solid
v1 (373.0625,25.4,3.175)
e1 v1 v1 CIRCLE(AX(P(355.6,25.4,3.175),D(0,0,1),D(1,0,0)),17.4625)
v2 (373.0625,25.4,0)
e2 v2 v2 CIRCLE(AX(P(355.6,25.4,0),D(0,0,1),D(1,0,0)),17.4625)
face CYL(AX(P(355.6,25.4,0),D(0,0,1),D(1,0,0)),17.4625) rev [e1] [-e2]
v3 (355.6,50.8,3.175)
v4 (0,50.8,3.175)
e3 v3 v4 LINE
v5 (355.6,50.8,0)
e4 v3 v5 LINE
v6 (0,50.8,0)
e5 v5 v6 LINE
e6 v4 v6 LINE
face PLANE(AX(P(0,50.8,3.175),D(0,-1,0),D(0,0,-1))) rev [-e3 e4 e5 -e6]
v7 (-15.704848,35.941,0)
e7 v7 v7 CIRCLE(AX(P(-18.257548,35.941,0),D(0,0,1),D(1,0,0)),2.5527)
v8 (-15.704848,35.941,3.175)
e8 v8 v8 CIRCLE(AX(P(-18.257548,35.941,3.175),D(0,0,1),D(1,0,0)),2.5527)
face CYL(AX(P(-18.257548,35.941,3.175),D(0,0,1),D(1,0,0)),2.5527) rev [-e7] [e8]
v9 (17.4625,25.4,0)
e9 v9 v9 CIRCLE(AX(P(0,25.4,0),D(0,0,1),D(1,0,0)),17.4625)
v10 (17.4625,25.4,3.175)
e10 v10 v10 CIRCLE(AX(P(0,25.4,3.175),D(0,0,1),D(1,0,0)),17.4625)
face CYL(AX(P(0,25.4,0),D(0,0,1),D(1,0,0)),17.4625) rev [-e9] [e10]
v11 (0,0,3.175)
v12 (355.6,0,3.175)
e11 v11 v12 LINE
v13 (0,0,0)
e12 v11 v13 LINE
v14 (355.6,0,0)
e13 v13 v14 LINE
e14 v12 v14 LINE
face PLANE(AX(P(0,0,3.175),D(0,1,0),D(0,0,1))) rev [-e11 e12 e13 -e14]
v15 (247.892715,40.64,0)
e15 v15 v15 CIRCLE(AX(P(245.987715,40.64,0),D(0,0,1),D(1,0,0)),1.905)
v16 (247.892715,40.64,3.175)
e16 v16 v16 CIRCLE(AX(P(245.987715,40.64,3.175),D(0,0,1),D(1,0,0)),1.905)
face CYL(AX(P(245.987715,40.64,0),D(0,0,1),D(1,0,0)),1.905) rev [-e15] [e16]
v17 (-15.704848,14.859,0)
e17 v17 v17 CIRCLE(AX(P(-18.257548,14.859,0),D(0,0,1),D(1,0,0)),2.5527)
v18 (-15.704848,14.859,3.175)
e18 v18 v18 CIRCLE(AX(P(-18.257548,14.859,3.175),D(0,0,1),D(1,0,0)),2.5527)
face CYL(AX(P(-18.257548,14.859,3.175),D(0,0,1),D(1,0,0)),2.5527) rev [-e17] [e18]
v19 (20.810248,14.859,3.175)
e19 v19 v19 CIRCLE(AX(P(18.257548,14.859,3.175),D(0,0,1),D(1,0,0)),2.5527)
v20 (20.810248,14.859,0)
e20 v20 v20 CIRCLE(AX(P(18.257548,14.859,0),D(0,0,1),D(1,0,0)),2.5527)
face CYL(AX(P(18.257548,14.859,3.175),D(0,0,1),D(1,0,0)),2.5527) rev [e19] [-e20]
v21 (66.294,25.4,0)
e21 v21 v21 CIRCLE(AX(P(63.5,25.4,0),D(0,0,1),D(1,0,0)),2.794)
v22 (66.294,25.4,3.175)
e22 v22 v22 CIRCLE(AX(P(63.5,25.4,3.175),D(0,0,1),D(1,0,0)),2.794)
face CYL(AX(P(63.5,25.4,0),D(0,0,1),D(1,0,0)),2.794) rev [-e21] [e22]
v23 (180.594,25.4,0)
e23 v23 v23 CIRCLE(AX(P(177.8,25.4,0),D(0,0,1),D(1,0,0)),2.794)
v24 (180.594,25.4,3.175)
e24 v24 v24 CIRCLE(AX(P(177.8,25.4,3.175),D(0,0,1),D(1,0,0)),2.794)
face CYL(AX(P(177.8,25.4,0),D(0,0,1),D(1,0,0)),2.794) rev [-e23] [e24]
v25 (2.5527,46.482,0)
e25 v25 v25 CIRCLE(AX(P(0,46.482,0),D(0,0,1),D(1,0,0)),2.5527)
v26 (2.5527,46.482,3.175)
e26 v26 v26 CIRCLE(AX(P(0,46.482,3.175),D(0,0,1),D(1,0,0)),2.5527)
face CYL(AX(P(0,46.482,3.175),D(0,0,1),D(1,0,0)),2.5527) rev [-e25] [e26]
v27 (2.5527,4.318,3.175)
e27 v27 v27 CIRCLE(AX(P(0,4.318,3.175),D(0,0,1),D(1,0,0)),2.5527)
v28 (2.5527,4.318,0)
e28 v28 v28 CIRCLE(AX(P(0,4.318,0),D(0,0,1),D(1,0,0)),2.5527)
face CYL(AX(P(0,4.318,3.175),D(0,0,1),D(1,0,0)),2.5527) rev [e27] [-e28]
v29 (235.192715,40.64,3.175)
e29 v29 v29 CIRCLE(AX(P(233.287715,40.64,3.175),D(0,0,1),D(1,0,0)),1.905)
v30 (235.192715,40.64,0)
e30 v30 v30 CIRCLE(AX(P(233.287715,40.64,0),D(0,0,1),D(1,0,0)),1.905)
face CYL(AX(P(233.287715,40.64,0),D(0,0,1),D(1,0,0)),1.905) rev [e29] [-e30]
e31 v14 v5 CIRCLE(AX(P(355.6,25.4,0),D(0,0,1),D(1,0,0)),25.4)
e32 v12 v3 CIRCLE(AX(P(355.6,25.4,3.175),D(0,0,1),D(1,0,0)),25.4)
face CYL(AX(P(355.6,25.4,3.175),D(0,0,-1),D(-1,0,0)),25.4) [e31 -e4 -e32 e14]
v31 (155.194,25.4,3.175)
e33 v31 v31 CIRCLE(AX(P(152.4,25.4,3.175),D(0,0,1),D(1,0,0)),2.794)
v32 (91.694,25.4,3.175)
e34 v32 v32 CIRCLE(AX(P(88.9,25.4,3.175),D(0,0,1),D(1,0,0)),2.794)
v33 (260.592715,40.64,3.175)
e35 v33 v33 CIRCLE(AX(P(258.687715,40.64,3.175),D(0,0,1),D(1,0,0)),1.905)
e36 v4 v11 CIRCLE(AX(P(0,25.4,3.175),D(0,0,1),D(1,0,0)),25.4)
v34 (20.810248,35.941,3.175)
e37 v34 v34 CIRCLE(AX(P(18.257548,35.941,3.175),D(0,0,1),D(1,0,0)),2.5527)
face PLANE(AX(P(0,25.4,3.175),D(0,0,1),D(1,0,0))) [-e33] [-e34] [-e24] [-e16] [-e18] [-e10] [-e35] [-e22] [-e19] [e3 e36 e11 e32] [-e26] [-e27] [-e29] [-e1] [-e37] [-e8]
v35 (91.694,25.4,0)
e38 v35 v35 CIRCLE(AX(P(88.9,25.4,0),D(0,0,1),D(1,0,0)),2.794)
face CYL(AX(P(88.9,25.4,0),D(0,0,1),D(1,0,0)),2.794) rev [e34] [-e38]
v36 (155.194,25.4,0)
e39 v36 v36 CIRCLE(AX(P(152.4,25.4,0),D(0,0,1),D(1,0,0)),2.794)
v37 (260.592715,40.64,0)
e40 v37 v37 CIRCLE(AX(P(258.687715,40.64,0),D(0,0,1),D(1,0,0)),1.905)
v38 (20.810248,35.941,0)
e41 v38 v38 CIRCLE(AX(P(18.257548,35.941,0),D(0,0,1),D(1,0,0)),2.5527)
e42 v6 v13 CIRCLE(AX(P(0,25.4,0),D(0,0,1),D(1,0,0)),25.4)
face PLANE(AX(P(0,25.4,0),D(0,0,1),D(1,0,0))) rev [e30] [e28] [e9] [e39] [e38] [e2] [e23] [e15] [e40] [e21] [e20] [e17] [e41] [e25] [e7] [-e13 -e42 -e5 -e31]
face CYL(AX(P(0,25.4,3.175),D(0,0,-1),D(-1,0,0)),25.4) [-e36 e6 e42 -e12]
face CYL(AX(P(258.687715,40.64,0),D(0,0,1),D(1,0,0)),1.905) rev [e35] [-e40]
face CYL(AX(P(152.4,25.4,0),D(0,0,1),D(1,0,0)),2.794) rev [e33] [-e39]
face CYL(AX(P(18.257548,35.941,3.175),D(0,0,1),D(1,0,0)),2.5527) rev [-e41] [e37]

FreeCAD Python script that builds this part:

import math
import FreeCAD as App
import Part
import Sketcher

V = App.Vector
Q = App.Units.Quantity

doc = App.newDocument("Part")
params = doc.addObject("Spreadsheet::Sheet", "Params")
for row, (alias, value) in enumerate([
    ("sketch1_radius", "1 in"),
    ("sketch1_width", "14 in"),
    ("pad1_length", "0.125 in"),
    ("sketch2_diameter", "1.375 in"),
    ("sketch3_diameter", "0.201 in"),
    ("hole_diameter", "0.201 in"),
    ("sketch4_diameter", "0.22 in"),
    ("sketch5_diameter", "0.15 in"),
], start=1):
    params.set(f"A{row}", alias)
    params.set(f"B{row}", "=" + value)
    params.setAlias(f"B{row}", alias)

body = doc.addObject("PartDesign::Body", "Body")

# Sketch on XY plane
sketch1 = doc.addObject("Sketcher::SketchObject", "Sketch")
body.addObject(sketch1)
sketch1.AttachmentSupport = (doc.XY_Plane, [""])
sketch1.MapMode = "FlatFace"
sketch1.addGeometry(Part.LineSegment(V(0, 0, 0), V(356, 0, 0)), False)
sketch1.addGeometry(Part.ArcOfCircle(Part.Circle(V(356, 25, 0), V(0, 0, 1), 25), math.radians(-90), math.radians(90)), False)
sketch1.addGeometry(Part.LineSegment(V(356, 51, 0), V(0, 51, 0)), False)
sketch1.addGeometry(Part.ArcOfCircle(Part.Circle(V(0, 25, 0), V(0, 0, 1), 25), math.radians(90), math.radians(270)), False)
sketch1.addConstraint(Sketcher.Constraint("Tangent", 0, 2, 1, 1))
sketch1.addConstraint(Sketcher.Constraint("Tangent", 1, 2, 2, 1))
sketch1.addConstraint(Sketcher.Constraint("Tangent", 2, 2, 3, 1))
sketch1.addConstraint(Sketcher.Constraint("Tangent", 3, 2, 0, 1))
sketch1.addConstraint(Sketcher.Constraint("Horizontal", 0))
sketch1.addConstraint(Sketcher.Constraint("Horizontal", 2))
sketch1.addConstraint(Sketcher.Constraint("Coincident", 3, 2, -1, 1))
sketch1.addConstraint(Sketcher.Constraint("Radius", 1, Q("1 in")))
sketch1.addConstraint(Sketcher.Constraint("DistanceX", 0, 1, 0, 2, Q("14 in")))
sketch1.setExpression("Constraints[7]", "Params.sketch1_radius")
sketch1.setExpression("Constraints[8]", "Params.sketch1_width")
pad1 = doc.addObject("PartDesign::Pad", "Pad")
body.addObject(pad1)
pad1.Profile = sketch1
pad1.setExpression("Length", "Params.pad1_length")

# Sketch on XY plane
sketch2 = doc.addObject("Sketcher::SketchObject", "Sketch001")
body.addObject(sketch2)
sketch2.AttachmentSupport = (doc.XY_Plane, [""])
sketch2.MapMode = "FlatFace"
sketch2.AttachmentOffset = App.Placement(V(0, 0, 0.125 * 25.4), App.Rotation())
sketch2.addGeometry(Part.Circle(V(0, 25, 0), V(0, 0, 1), 17), False)
sketch2.addGeometry(Part.Circle(V(356, 25, 0), V(0, 0, 1), 17), False)
sketch2.addConstraint(Sketcher.Constraint("Equal", 0, 1))
sketch2.addConstraint(Sketcher.Constraint("PointOnObject", 0, 3, -2))
sketch2.addConstraint(Sketcher.Constraint("Horizontal", 0, 3, 1, 3))
sketch2.addConstraint(Sketcher.Constraint("Diameter", 0, Q("1.375 in")))
sketch2.addConstraint(Sketcher.Constraint("DistanceY", -1, 1, 0, 3, Q("1 in")))
sketch2.addConstraint(Sketcher.Constraint("DistanceX", -1, 1, 1, 3, Q("14 in")))
sketch2.setExpression("Constraints[3]", "Params.sketch2_diameter")
pocket1 = doc.addObject("PartDesign::Pocket", "Pocket")
body.addObject(pocket1)
pocket1.Profile = sketch2
pocket1.Type = "ThroughAll"

# Sketch on XY plane
sketch3 = doc.addObject("Sketcher::SketchObject", "Sketch002")
body.addObject(sketch3)
sketch3.AttachmentSupport = (doc.XY_Plane, [""])
sketch3.MapMode = "FlatFace"
sketch3.AttachmentOffset = App.Placement(V(0, 0, 0.125 * 25.4), App.Rotation())
sketch3.addGeometry(Part.Circle(V(18.3, 35.9, 0), V(0, 0, 1), 2.6), False)
sketch3.addGeometry(Part.Circle(V(18.3, 14.9, 0), V(0, 0, 1), 2.6), False)
sketch3.addGeometry(Part.Circle(V(0, 4.3, 0), V(0, 0, 1), 2.6), False)
sketch3.addGeometry(Part.Circle(V(-18.3, 14.9, 0), V(0, 0, 1), 2.6), False)
sketch3.addGeometry(Part.Circle(V(-18.3, 35.9, 0), V(0, 0, 1), 2.6), False)
sketch3.addGeometry(Part.Circle(V(0, 46.5, 0), V(0, 0, 1), 2.6), False)
sketch3.addConstraint(Sketcher.Constraint("Equal", 0, 1))
sketch3.addConstraint(Sketcher.Constraint("Equal", 1, 2))
sketch3.addConstraint(Sketcher.Constraint("Equal", 2, 3))
sketch3.addConstraint(Sketcher.Constraint("Equal", 3, 4))
sketch3.addConstraint(Sketcher.Constraint("Equal", 4, 5))
sketch3.addConstraint(Sketcher.Constraint("Symmetric", 1, 3, 3, 3, -2))
sketch3.addConstraint(Sketcher.Constraint("Symmetric", 0, 3, 4, 3, -2))
sketch3.addConstraint(Sketcher.Constraint("PointOnObject", 2, 3, -2))
sketch3.addConstraint(Sketcher.Constraint("PointOnObject", 5, 3, -2))
sketch3.addConstraint(Sketcher.Constraint("Vertical", 0, 3, 1, 3))
sketch3.addConstraint(Sketcher.Constraint("Diameter", 0, Q("0.201 in")))
sketch3.addConstraint(Sketcher.Constraint("DistanceY", -1, 1, 2, 3, Q("0.17 in")))
sketch3.addConstraint(Sketcher.Constraint("DistanceY", -1, 1, 5, 3, Q("1.83 in")))
sketch3.addConstraint(Sketcher.Constraint("DistanceY", 1, 3, 0, 3, Q("0.83 in")))
sketch3.addConstraint(Sketcher.Constraint("DistanceY", -1, 1, 0, 3, Q("1.415 in")))
sketch3.addConstraint(Sketcher.Constraint("DistanceX", -1, 1, 0, 3, 18.257548))
sketch3.setExpression("Constraints[10]", "Params.sketch3_diameter")
doc.recompute()
hole = doc.addObject("PartDesign::Hole", "Hole")
body.addObject(hole)
hole.Profile = sketch3
hole.ThreadType = "None"
hole.setExpression("Diameter", "Params.hole_diameter")
hole.DepthType = "ThroughAll"

# Sketch on XY plane
sketch4 = doc.addObject("Sketcher::SketchObject", "Sketch003")
body.addObject(sketch4)
sketch4.AttachmentSupport = (doc.XY_Plane, [""])
sketch4.MapMode = "FlatFace"
sketch4.AttachmentOffset = App.Placement(V(0, 0, 0.125 * 25.4), App.Rotation())
sketch4.addGeometry(Part.Circle(V(63.5, 25.4, 0), V(0, 0, 1), 2.8), False)
sketch4.addGeometry(Part.Circle(V(88.9, 25.4, 0), V(0, 0, 1), 2.8), False)
sketch4.addGeometry(Part.Circle(V(152.4, 25.4, 0), V(0, 0, 1), 2.8), False)
sketch4.addGeometry(Part.Circle(V(177.8, 25.4, 0), V(0, 0, 1), 2.8), False)
sketch4.addConstraint(Sketcher.Constraint("Equal", 0, 1))
sketch4.addConstraint(Sketcher.Constraint("Equal", 1, 2))
sketch4.addConstraint(Sketcher.Constraint("Equal", 2, 3))
sketch4.addConstraint(Sketcher.Constraint("Horizontal", 0, 3, 1, 3))
sketch4.addConstraint(Sketcher.Constraint("Horizontal", 1, 3, 2, 3))
sketch4.addConstraint(Sketcher.Constraint("Horizontal", 2, 3, 3, 3))
sketch4.addConstraint(Sketcher.Constraint("Diameter", 0, Q("0.22 in")))
sketch4.addConstraint(Sketcher.Constraint("DistanceY", -1, 1, 0, 3, Q("1 in")))
sketch4.addConstraint(Sketcher.Constraint("DistanceX", -1, 1, 2, 3, Q("6 in")))
sketch4.addConstraint(Sketcher.Constraint("DistanceX", -1, 1, 3, 3, Q("7 in")))
sketch4.addConstraint(Sketcher.Constraint("DistanceX", 0, 3, 1, 3, Q("1 in")))
sketch4.addConstraint(Sketcher.Constraint("DistanceX", -1, 1, 0, 3, Q("2.5 in")))
sketch4.setExpression("Constraints[6]", "Params.sketch4_diameter")
pocket2 = doc.addObject("PartDesign::Pocket", "Pocket001")
body.addObject(pocket2)
pocket2.Profile = sketch4
pocket2.Type = "ThroughAll"

# Sketch on XY plane
sketch5 = doc.addObject("Sketcher::SketchObject", "Sketch004")
body.addObject(sketch5)
sketch5.AttachmentSupport = (doc.XY_Plane, [""])
sketch5.MapMode = "FlatFace"
sketch5.AttachmentOffset = App.Placement(V(0, 0, 0.125 * 25.4), App.Rotation())
sketch5.addGeometry(Part.Circle(V(258.7, 40.6, 0), V(0, 0, 1), 1.9), False)
sketch5.addGeometry(Part.Circle(V(246, 40.6, 0), V(0, 0, 1), 1.9), False)
sketch5.addGeometry(Part.Circle(V(233.3, 40.6, 0), V(0, 0, 1), 1.9), False)
sketch5.addConstraint(Sketcher.Constraint("Equal", 0, 1))
sketch5.addConstraint(Sketcher.Constraint("Equal", 1, 2))
sketch5.addConstraint(Sketcher.Constraint("Horizontal", 0, 3, 1, 3))
sketch5.addConstraint(Sketcher.Constraint("Horizontal", 1, 3, 2, 3))
sketch5.addConstraint(Sketcher.Constraint("Diameter", 0, Q("0.15 in")))
sketch5.addConstraint(Sketcher.Constraint("DistanceX", 2, 3, 0, 3, Q("1 in")))
sketch5.addConstraint(Sketcher.Constraint("DistanceY", -1, 1, 0, 3, Q("1.6 in")))
sketch5.addConstraint(Sketcher.Constraint("DistanceX", 1, 3, 0, 3, Q("0.5 in")))
sketch5.addConstraint(Sketcher.Constraint("DistanceX", -1, 1, 0, 3, 258.687715))
sketch5.setExpression("Constraints[4]", "Params.sketch5_diameter")
pocket3 = doc.addObject("PartDesign::Pocket", "Pocket002")
body.addObject(pocket3)
pocket3.Profile = sketch5
pocket3.Type = "ThroughAll"

doc.recompute()
